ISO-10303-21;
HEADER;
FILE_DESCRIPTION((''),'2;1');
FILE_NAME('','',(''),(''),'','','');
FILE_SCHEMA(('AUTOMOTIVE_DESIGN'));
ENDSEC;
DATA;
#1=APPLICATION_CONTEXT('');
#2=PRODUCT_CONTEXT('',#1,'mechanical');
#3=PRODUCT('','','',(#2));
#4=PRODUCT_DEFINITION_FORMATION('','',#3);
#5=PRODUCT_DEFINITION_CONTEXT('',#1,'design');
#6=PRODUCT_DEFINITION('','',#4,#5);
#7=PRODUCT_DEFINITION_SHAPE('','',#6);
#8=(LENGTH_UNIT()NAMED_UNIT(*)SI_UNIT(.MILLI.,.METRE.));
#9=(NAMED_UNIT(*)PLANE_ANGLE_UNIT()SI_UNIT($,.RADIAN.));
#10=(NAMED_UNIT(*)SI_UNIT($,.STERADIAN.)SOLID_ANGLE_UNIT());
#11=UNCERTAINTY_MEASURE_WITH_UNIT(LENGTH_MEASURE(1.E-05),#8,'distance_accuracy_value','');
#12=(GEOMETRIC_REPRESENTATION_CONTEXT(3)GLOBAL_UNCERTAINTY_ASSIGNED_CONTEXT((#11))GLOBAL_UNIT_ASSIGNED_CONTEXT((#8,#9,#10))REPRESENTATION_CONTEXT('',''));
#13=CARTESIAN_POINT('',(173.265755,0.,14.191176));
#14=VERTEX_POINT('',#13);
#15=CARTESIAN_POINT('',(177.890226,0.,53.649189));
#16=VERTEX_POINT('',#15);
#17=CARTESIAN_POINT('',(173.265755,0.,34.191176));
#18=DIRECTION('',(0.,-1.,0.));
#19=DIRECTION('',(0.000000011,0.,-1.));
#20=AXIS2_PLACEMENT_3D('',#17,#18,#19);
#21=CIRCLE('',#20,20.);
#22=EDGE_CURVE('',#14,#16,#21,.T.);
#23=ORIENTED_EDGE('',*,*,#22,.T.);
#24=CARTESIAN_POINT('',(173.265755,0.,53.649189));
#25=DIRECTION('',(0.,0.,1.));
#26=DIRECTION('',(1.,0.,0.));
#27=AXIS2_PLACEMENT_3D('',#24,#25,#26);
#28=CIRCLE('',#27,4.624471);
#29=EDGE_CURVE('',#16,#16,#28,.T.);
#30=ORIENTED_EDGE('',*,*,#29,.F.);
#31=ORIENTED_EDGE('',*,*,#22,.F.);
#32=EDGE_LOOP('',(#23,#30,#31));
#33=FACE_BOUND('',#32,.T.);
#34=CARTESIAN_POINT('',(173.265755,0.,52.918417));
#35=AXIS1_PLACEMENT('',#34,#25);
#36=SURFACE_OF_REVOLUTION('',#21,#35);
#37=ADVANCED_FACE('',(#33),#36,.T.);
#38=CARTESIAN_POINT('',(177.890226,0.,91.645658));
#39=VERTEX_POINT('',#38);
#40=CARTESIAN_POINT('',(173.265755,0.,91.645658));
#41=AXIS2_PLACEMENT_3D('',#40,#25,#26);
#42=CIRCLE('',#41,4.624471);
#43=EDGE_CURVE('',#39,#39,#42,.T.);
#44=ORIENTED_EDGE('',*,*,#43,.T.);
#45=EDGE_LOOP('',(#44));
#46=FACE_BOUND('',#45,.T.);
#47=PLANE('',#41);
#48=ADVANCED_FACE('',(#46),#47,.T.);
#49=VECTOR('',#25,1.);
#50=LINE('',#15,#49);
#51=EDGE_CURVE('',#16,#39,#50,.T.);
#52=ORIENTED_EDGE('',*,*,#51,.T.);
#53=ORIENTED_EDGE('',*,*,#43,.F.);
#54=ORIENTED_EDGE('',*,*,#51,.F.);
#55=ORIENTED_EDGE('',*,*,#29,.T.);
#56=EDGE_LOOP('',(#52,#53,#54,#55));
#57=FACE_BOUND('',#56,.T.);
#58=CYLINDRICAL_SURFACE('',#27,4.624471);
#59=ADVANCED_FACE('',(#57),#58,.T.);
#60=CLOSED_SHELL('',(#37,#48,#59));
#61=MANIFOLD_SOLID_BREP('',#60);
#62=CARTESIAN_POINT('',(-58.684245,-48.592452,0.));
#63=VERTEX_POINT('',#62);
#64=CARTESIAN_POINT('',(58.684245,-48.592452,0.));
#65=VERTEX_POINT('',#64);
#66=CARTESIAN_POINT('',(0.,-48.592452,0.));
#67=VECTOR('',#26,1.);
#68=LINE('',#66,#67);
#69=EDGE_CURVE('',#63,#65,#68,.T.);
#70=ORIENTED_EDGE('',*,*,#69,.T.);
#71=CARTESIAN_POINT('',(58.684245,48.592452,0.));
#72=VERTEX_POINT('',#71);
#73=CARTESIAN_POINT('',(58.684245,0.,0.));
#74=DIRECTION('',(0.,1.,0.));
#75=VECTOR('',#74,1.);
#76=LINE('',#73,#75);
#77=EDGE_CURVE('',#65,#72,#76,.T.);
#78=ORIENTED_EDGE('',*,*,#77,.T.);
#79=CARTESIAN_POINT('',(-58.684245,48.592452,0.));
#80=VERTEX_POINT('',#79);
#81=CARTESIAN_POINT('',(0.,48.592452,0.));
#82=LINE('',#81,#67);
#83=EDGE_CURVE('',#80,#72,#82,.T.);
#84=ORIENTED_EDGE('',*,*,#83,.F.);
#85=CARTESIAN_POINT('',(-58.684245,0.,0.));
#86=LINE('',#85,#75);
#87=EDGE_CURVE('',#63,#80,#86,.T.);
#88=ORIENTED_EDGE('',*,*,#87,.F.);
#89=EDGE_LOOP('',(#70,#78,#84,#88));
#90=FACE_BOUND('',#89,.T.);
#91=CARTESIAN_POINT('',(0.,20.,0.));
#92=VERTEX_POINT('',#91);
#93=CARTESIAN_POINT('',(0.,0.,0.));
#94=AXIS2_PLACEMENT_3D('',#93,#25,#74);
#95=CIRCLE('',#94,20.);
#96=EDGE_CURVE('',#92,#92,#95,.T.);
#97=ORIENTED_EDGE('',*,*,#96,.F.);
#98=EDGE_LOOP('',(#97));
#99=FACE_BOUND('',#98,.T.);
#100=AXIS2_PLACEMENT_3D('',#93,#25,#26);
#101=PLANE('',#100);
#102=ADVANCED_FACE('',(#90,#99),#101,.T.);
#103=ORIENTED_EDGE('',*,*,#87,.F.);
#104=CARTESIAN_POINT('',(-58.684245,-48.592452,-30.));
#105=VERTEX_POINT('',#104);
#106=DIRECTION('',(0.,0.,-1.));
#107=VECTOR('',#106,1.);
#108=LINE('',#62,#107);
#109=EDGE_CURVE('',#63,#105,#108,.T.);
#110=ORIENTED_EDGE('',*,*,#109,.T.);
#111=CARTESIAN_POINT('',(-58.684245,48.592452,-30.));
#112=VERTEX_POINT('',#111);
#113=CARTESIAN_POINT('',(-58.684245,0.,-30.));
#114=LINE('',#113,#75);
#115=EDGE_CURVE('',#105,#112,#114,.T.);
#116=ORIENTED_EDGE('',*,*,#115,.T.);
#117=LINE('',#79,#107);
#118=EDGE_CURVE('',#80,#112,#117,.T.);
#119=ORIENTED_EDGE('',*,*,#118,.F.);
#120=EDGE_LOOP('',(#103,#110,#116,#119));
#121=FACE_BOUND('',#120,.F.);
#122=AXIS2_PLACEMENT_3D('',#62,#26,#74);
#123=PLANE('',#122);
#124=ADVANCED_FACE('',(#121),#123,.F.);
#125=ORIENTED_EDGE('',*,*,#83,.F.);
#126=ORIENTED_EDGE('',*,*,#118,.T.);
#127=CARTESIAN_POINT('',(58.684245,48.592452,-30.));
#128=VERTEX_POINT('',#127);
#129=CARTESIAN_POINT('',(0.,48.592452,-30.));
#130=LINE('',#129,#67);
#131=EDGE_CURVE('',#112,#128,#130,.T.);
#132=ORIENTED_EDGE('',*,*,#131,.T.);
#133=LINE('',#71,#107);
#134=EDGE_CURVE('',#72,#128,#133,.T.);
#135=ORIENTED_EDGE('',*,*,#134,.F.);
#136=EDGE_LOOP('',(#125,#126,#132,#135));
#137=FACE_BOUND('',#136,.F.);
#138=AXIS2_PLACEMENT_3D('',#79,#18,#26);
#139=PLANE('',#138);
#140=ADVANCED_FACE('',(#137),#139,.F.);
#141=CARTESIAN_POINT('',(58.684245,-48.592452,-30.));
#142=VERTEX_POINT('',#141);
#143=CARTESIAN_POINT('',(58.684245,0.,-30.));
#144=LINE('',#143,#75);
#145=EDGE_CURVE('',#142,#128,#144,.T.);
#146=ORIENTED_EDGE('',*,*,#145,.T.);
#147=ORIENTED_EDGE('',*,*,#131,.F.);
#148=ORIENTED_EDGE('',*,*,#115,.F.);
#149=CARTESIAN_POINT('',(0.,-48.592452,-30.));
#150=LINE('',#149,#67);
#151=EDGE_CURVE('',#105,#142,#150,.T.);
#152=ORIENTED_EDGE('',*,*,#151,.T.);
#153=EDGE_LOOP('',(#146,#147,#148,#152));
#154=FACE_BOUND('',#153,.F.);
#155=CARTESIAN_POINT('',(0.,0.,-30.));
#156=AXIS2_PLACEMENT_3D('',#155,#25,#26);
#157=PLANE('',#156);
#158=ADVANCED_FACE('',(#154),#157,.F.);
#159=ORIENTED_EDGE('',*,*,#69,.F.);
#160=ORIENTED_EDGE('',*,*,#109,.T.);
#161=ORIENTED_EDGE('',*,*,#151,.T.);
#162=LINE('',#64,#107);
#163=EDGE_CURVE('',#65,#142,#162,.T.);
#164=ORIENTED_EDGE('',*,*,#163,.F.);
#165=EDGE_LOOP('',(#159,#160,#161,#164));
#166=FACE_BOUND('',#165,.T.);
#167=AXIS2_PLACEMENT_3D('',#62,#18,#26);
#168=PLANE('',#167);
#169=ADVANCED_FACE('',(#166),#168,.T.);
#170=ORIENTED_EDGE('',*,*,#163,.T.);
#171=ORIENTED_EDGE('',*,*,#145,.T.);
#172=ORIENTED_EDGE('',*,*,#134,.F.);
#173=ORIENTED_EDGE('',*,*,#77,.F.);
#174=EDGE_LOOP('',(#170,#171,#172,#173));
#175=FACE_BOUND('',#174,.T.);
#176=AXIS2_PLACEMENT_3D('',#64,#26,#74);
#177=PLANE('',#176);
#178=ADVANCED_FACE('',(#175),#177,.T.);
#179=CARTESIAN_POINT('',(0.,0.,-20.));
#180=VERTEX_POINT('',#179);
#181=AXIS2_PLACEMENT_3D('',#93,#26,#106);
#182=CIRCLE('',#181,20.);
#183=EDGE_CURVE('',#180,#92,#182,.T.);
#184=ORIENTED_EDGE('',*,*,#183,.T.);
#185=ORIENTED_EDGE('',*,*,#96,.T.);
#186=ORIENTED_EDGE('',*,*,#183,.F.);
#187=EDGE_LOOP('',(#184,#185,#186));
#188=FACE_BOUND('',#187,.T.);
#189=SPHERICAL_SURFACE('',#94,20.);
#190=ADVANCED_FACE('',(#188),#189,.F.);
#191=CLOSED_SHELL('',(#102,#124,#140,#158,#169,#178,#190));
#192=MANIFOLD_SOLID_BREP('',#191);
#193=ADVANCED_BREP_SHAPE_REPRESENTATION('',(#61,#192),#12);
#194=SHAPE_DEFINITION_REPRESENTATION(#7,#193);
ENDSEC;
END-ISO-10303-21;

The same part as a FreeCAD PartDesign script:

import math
import FreeCAD as App
import Part
import Sketcher
Q = App.Units.Quantity


def add_polygon(sketch, points):
    """Adds a closed chain of lines whose ends are joined by coincident constraints."""
    first, n = sketch.GeometryCount, len(points)
    for a, b in zip(points, points[1:] + points[:1]):
        sketch.addGeometry(Part.LineSegment(App.Vector(*a, 0), App.Vector(*b, 0)), False)
    for i in range(n):
        sketch.addConstraint(Sketcher.Constraint("Coincident", first + i, 2, first + (i + 1) % n, 1))

doc = App.newDocument("Part")
body = doc.addObject("PartDesign::Body", "Body")

# Sketch on XY plane
sketch1 = doc.addObject("Sketcher::SketchObject", "Sketch")
body.addObject(sketch1)
sketch1.AttachmentSupport = (doc.XY_Plane, [""])
sketch1.MapMode = "FlatFace"
add_polygon(sketch1, [(-58.684245, 48.592452), (-58.684245, -48.592452), (58.684245, -48.592452), (58.684245, 48.592452)])  # lines 0-3
sketch1.addConstraint([
    Sketcher.Constraint("Vertical", 0),
    Sketcher.Constraint("Horizontal", 1),
    Sketcher.Constraint("Vertical", 2),
    Sketcher.Constraint("Horizontal", 3),
    Sketcher.Constraint("Symmetric", 0, 2, 2, 2, -1, 1),
    Sketcher.Constraint("DistanceX", 1, 1, 1, 2, Q("117.36849 mm")),
    Sketcher.Constraint("DistanceY", 0, 2, 0, 1, Q("97.184904 mm")),
])
pad1 = doc.addObject("PartDesign::Pad", "Pad")
body.addObject(pad1)
pad1.Profile = sketch1
pad1.Length = 30
pad1.Reversed = True

# Sketch on YZ plane
sketch2 = doc.addObject("Sketcher::SketchObject", "Sketch001")
body.addObject(sketch2)
sketch2.AttachmentSupport = (doc.YZ_Plane, [""])
sketch2.MapMode = "FlatFace"
sketch2.addGeometry([
    Part.LineSegment(App.Vector(0, 20, 0), App.Vector(0, -20, 0)),
    Part.ArcOfCircle(Part.Circle(App.Vector(0, 0, 0), App.Vector(0, 0, 1), 20), math.radians(-90), math.radians(90)),
], False)
sketch2.addConstraint([
    Sketcher.Constraint("Coincident", 0, 1, 1, 2),
    Sketcher.Constraint("Coincident", 1, 1, 0, 2),
    Sketcher.Constraint("Vertical", 0),
    Sketcher.Constraint("Coincident", 1, 3, -1, 1),
    Sketcher.Constraint("PointOnObject", 0, 1, -2),
    Sketcher.Constraint("Radius", 1, Q("20 mm")),
])
groove = doc.addObject("PartDesign::Groove", "Groove")
body.addObject(groove)
groove.Profile = sketch2
groove.ReferenceAxis = (sketch2, ["V_Axis"])
groove.Angle = 360
body2 = doc.addObject("PartDesign::Body", "Body001")

# Sketch on XZ plane
sketch3 = doc.addObject("Sketcher::SketchObject", "Sketch002")
body2.addObject(sketch3)
sketch3.AttachmentSupport = (doc.getObject("XZ_Plane001"), [""])
sketch3.MapMode = "FlatFace"
sketch3.addGeometry([
    Part.LineSegment(App.Vector(173.265755, 91.645658, 0), App.Vector(173.265755, 14.191176, 0)),
    Part.ArcOfCircle(Part.Circle(App.Vector(173.265755, 34.191176, 0), App.Vector(0, 0, 1), 20), math.radians(-89.999999), math.radians(76.630881)),
    Part.LineSegment(App.Vector(177.890226, 53.649189, 0), App.Vector(177.890226, 91.645658, 0)),
    Part.LineSegment(App.Vector(177.890226, 91.645658, 0), App.Vector(173.265755, 91.645658, 0)),
], False)
sketch3.addGeometry(Part.LineSegment(App.Vector(173.265755, 14.191176, 0), App.Vector(173.265755, 91.645658, 0)), True)  # axis
sketch3.addConstraint([
    Sketcher.Constraint("Coincident", 0, 2, 1, 1),
    Sketcher.Constraint("Coincident", 1, 2, 2, 1),
    Sketcher.Constraint("Coincident", 2, 2, 3, 1),
    Sketcher.Constraint("Coincident", 3, 2, 0, 1),
    Sketcher.Constraint("Vertical", 0),
    Sketcher.Constraint("Vertical", 2),
    Sketcher.Constraint("Horizontal", 3),
    Sketcher.Constraint("Vertical", 4),
    Sketcher.Constraint("Coincident", 4, 1, 0, 2),
    Sketcher.Constraint("Horizontal", 2, 2, 4, 2),
    Sketcher.Constraint("Vertical", 1, 3, 0, 2),
    Sketcher.Constraint("Radius", 1, Q("20 mm")),
    Sketcher.Constraint("DistanceX", 3, 2, 3, 1, Q("4.624471 mm")),
    Sketcher.Constraint("DistanceY", 0, 2, 0, 1, Q("77.454482 mm")),
    Sketcher.Constraint("DistanceY", -1, 1, 1, 2, Q("53.649189 mm")),
    Sketcher.Constraint("DistanceX", -1, 1, 1, 3, Q("173.265755 mm")),
])
revolution = doc.addObject("PartDesign::Revolution", "Revolution")
body2.addObject(revolution)
revolution.Profile = sketch3
revolution.ReferenceAxis = (sketch3, ["Axis0"])
revolution.Angle = 360

doc.recompute()
